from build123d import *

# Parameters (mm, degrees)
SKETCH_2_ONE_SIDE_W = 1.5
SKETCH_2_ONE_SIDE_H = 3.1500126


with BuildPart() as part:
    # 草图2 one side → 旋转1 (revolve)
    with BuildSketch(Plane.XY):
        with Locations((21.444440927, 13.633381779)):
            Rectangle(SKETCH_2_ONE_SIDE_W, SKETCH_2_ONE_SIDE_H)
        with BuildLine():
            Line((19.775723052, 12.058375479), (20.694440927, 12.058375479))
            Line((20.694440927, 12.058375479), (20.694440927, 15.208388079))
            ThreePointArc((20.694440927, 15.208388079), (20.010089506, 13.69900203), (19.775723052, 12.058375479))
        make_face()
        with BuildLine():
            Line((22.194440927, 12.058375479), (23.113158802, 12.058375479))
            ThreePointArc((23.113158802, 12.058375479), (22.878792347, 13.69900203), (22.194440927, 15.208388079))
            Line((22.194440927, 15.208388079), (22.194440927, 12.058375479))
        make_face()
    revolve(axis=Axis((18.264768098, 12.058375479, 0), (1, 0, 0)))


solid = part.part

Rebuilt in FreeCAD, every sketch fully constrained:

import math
import FreeCAD as App
import Part
import Sketcher
Q = App.Units.Quantity

doc = App.newDocument("Part")
body = doc.addObject("PartDesign::Body", "Body")

# Sketch on XY plane
sketch1 = body.newObject("Sketcher::SketchObject", "Sketch")
sketch1.AttachmentSupport = (doc.getObject("XY_Plane"), [""])
sketch1.MapMode = "FlatFace"
sketch1.addGeometry([
    Part.LineSegment(App.Vector(22.2, 15.2, 0), App.Vector(20.7, 15.2, 0)),
    Part.ArcOfCircle(Part.Circle(App.Vector(25.6, 12.1, 0), App.Vector(0, 0, 1), 5.9), math.radians(147), math.radians(180)),
    Part.LineSegment(App.Vector(19.8, 12.1, 0), App.Vector(23.1, 12.1, 0)),
    Part.ArcOfCircle(Part.Circle(App.Vector(17.3, 12.1, 0), App.Vector(0, 0, 1), 5.9), math.radians(0), math.radians(33)),
], False)
sketch1.addGeometry(Part.LineSegment(App.Vector(17.3, 12.1, 0), App.Vector(25.6, 12.1, 0)), True)  # axis
sketch1.addConstraint([
    Sketcher.Constraint("Coincident", 0, 2, 1, 1),
    Sketcher.Constraint("Coincident", 1, 2, 2, 1),
    Sketcher.Constraint("Coincident", 2, 2, 3, 1),
    Sketcher.Constraint("Coincident", 3, 2, 0, 1),
    Sketcher.Constraint("Horizontal", 0),
    Sketcher.Constraint("Horizontal", 2),
    Sketcher.Constraint("Horizontal", 4),
    Sketcher.Constraint("Coincident", 4, 1, 3, 3),
    Sketcher.Constraint("Coincident", 4, 2, 1, 3),
    Sketcher.Constraint("Equal", 1, 3),
    Sketcher.Constraint("Horizontal", 3, 3, 1, 2),
    Sketcher.Constraint("DistanceX", 0, 2, 0, 1, Q("1.5 mm")),
    Sketcher.Constraint("Radius", 1, Q("5.859591 mm")),
    Sketcher.Constraint("DistanceX", 2, 1, 2, 2, Q("3.337436 mm")),
    Sketcher.Constraint("DistanceX", -1, 1, 0, 2, Q("20.694441 mm")),
    Sketcher.Constraint("DistanceY", -1, 1, 0, 2, Q("15.208388 mm")),
])
revolution = body.newObject("PartDesign::Revolution", "Revolution")
revolution.Profile = sketch1
revolution.ReferenceAxis = (sketch1, ["Axis0"])
revolution.Angle = 360

doc.recompute()
